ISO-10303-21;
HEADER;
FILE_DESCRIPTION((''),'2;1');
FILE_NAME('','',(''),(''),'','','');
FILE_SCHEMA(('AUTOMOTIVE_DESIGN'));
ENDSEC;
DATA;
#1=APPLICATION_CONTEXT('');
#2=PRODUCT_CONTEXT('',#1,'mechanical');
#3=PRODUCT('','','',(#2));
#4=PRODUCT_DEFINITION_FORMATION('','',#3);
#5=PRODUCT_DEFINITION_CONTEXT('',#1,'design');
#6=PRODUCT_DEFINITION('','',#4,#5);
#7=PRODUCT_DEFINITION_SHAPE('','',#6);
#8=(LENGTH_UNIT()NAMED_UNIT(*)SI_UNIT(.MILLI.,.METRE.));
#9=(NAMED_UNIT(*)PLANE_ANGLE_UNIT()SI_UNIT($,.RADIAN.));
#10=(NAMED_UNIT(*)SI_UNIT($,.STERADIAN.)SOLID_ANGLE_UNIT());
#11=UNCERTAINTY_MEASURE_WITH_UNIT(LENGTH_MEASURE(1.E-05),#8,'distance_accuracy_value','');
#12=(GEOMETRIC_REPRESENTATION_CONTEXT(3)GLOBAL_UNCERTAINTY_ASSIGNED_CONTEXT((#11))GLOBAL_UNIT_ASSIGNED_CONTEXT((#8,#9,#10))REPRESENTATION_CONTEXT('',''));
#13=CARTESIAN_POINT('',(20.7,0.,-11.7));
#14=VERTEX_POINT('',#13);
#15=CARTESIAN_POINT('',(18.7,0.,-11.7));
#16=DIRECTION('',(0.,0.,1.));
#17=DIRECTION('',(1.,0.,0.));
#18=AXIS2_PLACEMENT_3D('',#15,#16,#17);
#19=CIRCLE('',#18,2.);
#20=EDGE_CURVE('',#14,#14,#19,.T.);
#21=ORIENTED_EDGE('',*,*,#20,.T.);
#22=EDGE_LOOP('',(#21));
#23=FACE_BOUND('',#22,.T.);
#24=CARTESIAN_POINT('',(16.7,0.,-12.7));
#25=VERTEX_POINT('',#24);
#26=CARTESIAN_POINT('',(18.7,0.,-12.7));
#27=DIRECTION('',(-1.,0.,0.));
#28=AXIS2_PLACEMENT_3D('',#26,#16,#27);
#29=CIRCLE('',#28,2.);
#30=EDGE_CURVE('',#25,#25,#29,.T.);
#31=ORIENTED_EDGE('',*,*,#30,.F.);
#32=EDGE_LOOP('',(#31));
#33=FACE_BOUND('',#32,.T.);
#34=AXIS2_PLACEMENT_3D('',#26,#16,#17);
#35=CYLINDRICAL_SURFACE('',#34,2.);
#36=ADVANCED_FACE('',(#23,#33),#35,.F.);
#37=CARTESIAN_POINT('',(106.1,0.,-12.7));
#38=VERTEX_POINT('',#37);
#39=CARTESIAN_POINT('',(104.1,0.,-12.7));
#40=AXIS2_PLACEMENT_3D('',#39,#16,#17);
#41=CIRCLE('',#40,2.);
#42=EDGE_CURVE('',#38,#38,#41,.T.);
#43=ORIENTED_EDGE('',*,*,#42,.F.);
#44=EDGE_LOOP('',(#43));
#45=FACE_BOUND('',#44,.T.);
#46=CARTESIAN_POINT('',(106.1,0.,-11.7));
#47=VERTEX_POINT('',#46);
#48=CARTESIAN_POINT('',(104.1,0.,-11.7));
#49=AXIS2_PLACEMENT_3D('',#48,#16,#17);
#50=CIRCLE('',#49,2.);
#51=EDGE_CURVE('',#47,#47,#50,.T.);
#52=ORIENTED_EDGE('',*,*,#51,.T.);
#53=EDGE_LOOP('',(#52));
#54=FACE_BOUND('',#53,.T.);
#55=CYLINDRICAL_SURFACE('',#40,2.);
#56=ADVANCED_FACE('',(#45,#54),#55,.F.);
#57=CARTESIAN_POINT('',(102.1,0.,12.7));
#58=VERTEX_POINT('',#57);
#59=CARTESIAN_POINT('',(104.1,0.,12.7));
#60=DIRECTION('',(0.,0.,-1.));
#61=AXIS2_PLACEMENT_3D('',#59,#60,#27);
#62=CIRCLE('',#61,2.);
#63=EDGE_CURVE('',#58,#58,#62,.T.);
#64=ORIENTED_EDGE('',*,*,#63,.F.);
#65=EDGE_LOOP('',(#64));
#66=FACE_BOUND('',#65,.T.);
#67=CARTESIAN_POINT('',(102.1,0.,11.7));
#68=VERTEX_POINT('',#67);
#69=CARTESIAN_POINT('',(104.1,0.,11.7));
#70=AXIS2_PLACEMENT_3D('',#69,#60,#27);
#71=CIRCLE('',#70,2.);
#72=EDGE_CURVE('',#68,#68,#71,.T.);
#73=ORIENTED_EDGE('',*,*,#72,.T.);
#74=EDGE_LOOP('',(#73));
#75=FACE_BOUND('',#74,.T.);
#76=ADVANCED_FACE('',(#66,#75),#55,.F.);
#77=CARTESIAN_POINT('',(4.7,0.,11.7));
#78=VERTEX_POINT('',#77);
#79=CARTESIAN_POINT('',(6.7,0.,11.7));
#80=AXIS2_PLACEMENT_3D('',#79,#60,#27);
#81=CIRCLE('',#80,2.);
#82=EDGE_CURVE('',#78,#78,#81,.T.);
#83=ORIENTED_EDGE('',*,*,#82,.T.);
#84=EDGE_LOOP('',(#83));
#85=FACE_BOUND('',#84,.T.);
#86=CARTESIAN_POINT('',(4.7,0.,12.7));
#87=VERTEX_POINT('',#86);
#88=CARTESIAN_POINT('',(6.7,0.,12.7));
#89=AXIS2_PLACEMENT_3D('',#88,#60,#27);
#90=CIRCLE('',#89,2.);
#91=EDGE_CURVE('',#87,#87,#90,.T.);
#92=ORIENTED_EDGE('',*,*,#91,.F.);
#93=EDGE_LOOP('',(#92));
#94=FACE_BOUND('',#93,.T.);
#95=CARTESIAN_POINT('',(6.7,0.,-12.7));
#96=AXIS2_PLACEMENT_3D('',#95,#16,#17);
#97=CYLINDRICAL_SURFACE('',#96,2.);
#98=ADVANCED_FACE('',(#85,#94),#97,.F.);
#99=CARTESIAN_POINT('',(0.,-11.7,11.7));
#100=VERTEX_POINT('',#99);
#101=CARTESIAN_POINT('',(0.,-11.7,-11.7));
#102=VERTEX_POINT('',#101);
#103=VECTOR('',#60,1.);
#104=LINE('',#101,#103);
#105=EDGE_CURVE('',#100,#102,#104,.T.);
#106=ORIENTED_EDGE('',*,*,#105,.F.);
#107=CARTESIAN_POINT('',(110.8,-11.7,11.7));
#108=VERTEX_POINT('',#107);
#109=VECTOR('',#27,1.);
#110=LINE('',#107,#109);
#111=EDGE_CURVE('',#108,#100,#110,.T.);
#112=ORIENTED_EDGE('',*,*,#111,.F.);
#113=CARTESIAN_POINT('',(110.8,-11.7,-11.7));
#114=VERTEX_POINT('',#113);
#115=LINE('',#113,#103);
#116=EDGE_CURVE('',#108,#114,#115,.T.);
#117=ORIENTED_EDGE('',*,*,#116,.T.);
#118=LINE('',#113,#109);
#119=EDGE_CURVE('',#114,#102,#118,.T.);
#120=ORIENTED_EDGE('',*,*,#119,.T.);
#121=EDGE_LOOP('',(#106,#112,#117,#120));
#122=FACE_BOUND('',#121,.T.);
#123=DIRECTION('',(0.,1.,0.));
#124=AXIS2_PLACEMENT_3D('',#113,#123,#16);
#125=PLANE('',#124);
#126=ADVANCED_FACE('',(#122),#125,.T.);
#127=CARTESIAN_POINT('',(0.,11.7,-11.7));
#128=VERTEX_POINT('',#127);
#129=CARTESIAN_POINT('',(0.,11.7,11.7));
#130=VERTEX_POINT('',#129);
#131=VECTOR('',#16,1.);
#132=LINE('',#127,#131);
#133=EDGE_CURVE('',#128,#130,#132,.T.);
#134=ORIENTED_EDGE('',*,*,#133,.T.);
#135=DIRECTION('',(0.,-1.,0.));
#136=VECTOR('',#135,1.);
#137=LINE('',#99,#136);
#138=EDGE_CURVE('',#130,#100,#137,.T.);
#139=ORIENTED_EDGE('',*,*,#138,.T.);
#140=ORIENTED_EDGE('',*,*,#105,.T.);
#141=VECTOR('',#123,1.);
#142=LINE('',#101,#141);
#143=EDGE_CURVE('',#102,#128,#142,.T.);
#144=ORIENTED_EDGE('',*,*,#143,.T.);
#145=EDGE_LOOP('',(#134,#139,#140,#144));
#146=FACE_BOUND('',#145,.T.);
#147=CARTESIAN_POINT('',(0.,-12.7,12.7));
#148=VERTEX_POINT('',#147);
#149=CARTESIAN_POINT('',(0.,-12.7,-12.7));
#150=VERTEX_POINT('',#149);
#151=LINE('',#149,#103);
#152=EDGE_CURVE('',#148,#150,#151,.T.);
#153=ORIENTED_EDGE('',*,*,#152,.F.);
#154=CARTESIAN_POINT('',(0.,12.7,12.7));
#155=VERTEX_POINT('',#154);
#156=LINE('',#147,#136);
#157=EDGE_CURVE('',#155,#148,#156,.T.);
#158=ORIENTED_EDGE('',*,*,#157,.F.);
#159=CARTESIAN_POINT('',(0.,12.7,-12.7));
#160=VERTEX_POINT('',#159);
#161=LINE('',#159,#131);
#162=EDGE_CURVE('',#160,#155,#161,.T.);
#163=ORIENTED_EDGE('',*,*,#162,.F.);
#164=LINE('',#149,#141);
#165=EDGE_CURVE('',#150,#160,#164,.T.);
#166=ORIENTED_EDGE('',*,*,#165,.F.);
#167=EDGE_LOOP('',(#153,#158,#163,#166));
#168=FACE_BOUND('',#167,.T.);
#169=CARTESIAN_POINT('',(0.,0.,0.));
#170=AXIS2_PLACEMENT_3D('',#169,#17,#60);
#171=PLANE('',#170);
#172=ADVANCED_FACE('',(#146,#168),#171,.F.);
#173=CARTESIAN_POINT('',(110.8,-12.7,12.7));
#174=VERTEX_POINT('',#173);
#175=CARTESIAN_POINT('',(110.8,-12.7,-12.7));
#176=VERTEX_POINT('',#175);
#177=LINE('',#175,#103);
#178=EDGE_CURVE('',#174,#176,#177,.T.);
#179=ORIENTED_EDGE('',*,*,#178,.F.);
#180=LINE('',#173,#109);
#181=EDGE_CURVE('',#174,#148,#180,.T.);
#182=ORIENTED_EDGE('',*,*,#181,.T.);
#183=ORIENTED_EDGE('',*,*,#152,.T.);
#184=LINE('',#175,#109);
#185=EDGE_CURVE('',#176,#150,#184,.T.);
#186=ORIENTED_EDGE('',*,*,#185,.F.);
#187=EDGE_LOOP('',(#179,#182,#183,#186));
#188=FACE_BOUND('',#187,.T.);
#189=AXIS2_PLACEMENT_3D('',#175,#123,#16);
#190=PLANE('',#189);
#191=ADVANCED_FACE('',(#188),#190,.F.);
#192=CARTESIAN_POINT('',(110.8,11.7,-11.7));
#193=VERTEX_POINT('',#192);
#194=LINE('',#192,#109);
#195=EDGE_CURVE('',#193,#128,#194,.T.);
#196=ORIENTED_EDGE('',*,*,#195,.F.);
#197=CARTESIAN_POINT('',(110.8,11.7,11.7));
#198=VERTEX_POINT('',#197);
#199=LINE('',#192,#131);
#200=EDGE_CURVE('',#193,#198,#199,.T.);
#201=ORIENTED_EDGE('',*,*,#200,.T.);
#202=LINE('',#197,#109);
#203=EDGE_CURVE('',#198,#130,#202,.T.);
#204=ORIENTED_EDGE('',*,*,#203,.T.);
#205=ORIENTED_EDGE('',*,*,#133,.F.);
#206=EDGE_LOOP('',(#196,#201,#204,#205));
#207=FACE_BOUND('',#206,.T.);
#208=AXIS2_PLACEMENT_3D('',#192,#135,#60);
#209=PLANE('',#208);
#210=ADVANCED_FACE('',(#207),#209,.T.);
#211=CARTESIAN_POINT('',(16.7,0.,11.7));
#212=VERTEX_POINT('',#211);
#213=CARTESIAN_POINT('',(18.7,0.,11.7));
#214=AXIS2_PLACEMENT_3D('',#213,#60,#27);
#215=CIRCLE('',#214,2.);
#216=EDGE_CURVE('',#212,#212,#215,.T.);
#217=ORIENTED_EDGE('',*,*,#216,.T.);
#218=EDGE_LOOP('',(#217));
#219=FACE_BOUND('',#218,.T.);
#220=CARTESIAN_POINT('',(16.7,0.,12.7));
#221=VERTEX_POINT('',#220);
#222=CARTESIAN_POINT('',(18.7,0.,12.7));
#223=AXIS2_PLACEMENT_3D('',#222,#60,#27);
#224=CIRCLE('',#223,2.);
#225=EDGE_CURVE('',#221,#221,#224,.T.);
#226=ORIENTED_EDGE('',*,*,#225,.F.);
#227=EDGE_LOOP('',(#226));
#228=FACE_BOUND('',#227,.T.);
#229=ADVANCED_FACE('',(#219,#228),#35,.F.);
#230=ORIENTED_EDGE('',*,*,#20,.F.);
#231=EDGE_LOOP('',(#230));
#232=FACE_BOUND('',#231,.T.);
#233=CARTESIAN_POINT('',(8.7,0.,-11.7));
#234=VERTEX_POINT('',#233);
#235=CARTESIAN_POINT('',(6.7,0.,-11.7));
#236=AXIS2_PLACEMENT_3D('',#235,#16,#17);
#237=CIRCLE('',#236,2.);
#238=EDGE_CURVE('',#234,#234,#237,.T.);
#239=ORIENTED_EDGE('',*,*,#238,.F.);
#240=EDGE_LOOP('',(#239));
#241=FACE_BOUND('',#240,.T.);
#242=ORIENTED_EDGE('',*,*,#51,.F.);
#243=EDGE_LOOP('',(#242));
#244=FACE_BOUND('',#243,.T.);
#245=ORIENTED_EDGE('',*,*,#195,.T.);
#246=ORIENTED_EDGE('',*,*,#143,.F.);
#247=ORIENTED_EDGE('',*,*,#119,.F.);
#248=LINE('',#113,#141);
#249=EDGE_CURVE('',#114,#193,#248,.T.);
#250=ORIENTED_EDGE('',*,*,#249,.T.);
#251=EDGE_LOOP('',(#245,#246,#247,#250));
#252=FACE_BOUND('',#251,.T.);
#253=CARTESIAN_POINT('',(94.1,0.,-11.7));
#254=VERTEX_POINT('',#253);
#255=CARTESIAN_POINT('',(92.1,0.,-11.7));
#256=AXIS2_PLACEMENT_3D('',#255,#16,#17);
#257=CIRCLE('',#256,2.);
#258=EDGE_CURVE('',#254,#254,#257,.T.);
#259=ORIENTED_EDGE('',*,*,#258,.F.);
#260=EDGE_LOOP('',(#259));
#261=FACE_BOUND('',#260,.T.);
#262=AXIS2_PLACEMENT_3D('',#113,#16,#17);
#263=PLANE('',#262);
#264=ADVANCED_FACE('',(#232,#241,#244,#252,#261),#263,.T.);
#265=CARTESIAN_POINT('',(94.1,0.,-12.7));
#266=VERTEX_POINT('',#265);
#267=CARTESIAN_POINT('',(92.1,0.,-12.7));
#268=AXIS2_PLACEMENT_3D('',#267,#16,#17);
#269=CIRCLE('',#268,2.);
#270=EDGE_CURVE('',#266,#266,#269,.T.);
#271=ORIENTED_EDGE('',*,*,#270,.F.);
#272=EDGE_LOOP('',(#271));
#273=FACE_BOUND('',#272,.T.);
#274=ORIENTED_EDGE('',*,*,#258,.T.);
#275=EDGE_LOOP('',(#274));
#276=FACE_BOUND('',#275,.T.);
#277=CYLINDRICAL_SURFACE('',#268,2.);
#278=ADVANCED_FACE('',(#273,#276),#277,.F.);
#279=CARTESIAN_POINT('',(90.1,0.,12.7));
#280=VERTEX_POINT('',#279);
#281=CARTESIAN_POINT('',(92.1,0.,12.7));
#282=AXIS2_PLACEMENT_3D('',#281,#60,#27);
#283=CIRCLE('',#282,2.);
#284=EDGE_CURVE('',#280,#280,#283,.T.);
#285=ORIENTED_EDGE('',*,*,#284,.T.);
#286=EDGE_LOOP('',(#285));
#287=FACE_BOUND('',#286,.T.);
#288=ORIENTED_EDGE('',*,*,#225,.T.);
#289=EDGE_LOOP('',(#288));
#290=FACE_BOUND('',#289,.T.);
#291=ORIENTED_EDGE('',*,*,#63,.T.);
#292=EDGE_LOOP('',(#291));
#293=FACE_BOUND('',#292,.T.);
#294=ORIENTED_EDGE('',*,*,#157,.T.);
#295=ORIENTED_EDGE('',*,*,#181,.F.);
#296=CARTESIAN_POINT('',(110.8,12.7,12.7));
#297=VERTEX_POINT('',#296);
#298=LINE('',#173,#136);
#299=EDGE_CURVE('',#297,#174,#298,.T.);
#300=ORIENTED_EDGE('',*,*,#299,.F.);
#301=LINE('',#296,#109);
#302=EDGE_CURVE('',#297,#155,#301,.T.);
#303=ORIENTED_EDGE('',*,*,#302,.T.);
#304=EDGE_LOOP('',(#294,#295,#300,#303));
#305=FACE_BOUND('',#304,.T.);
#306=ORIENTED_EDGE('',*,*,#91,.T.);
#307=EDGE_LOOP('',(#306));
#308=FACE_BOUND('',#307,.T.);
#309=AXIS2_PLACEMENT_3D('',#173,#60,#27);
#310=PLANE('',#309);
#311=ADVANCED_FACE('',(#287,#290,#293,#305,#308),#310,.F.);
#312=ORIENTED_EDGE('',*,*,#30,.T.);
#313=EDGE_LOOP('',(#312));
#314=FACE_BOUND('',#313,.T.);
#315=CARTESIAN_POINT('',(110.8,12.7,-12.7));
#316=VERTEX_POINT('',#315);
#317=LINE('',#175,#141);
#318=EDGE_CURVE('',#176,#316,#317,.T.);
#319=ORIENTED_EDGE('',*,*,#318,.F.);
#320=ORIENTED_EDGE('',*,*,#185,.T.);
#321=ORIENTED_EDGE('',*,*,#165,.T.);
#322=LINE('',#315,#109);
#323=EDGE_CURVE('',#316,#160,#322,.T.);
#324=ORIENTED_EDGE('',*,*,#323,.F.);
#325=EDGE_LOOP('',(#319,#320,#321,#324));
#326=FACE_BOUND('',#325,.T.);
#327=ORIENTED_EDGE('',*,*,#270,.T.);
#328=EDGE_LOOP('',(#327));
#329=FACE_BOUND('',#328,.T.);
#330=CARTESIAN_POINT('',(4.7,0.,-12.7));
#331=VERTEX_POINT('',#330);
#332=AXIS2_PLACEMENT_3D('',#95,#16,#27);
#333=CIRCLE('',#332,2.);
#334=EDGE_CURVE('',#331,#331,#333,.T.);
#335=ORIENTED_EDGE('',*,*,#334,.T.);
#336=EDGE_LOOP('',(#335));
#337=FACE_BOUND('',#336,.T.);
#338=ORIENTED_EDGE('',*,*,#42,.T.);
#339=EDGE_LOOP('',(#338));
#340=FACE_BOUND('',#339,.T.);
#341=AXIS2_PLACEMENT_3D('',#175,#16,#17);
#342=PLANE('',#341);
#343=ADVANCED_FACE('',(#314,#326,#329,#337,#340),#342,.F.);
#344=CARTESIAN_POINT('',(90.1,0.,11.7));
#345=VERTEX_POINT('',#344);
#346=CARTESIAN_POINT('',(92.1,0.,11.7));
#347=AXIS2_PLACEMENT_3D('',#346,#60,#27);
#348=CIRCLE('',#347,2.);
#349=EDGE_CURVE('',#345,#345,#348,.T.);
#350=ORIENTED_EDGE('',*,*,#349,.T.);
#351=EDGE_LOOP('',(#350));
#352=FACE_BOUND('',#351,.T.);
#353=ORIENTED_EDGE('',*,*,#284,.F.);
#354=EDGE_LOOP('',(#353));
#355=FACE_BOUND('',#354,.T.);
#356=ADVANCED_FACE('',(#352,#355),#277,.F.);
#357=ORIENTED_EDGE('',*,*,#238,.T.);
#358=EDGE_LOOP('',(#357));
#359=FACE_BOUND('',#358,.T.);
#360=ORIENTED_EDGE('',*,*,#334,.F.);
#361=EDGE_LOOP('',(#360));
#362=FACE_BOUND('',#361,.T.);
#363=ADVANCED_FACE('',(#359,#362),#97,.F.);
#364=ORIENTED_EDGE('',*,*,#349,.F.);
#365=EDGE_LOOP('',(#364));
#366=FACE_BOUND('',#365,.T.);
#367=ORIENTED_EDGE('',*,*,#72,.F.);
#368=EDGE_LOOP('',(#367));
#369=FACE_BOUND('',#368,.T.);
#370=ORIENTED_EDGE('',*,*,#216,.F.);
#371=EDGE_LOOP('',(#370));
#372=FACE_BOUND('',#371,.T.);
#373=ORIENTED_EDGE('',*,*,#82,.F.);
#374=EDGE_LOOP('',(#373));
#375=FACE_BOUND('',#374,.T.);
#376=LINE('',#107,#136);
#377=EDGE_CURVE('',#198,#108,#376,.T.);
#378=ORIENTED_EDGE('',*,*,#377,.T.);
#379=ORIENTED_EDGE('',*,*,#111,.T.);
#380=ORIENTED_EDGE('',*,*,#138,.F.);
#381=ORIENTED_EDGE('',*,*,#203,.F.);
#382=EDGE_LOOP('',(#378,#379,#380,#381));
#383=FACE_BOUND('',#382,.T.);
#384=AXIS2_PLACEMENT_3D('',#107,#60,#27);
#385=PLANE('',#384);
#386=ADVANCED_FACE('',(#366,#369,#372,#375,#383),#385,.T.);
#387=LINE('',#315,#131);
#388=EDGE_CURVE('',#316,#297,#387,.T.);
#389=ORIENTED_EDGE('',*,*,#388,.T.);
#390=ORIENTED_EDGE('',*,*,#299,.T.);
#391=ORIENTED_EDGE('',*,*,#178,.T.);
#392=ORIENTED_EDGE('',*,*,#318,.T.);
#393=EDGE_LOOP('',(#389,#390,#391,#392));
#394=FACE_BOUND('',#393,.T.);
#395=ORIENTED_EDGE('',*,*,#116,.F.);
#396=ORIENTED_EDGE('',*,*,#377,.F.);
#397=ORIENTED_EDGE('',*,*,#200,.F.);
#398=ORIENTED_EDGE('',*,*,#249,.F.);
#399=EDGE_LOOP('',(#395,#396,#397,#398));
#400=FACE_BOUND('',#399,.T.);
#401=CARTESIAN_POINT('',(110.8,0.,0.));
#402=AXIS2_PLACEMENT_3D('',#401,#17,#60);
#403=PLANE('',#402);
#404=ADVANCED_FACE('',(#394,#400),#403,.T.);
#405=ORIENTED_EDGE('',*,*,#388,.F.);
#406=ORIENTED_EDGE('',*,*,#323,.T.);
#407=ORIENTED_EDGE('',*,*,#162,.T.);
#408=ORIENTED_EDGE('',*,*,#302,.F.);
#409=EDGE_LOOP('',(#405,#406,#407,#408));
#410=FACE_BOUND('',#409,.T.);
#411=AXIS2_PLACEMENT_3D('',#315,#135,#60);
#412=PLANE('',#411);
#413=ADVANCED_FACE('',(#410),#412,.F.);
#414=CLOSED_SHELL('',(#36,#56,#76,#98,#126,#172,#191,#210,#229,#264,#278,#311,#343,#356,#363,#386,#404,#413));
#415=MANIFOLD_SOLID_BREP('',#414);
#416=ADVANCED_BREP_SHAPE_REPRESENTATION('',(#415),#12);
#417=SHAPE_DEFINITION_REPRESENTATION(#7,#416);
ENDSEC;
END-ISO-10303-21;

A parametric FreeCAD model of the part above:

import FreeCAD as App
import Part
import Sketcher


def add_polygon(sketch, points):
    """Adds a closed chain of lines whose ends are joined by coincident constraints."""
    first, n = sketch.GeometryCount, len(points)
    for a, b in zip(points, points[1:] + points[:1]):
        sketch.addGeometry(Part.LineSegment(App.Vector(*a, 0), App.Vector(*b, 0)), False)
    for i in range(n):
        sketch.addConstraint(Sketcher.Constraint("Coincident", first + i, 2, first + (i + 1) % n, 1))

doc = App.newDocument("Part")
body = doc.addObject("PartDesign::Body", "Body")

# Sketch on YZ plane
sketch1 = body.newObject("Sketcher::SketchObject", "Sketch")
sketch1.AttachmentSupport = (doc.getObject("YZ_Plane"), [""])
sketch1.MapMode = "FlatFace"
add_polygon(sketch1, [(12.7, 12.7), (-12.7, 12.7), (-12.7, -12.7), (12.7, -12.7)])  # lines 0-3
add_polygon(sketch1, [(-11.7, -11.7), (-11.7, 11.7), (11.7, 11.7), (11.7, -11.7)])  # lines 4-7
sketch1.addConstraint(Sketcher.Constraint("Horizontal", 0))
sketch1.addConstraint(Sketcher.Constraint("Vertical", 1))
sketch1.addConstraint(Sketcher.Constraint("Horizontal", 2))
sketch1.addConstraint(Sketcher.Constraint("Vertical", 3))
sketch1.addConstraint(Sketcher.Constraint("Vertical", 4))
sketch1.addConstraint(Sketcher.Constraint("Horizontal", 5))
sketch1.addConstraint(Sketcher.Constraint("Vertical", 6))
sketch1.addConstraint(Sketcher.Constraint("Horizontal", 7))
sketch1.addConstraint(Sketcher.Constraint("Symmetric", 0, 2, 2, 2, -1, 1))
sketch1.addConstraint(Sketcher.Constraint("Symmetric", 4, 2, 6, 2, -1, 1))
sketch1.addConstraint(Sketcher.Constraint("Equal", 2, 1))
sketch1.addConstraint(Sketcher.Constraint("Equal", 7, 4))
sketch1.addConstraint(Sketcher.Constraint("DistanceX", 0, 2, 0, 1, 25.4))
sketch1.addConstraint(Sketcher.Constraint("DistanceX", 5, 1, 5, 2, 23.4))
pad1 = body.newObject("PartDesign::Pad", "Pad")
pad1.Profile = sketch1
pad1.Length = 110.8

# Sketch on XY plane
sketch2 = body.newObject("Sketcher::SketchObject", "Sketch001")
sketch2.AttachmentSupport = (doc.getObject("XY_Plane"), [""])
sketch2.MapMode = "FlatFace"
sketch2.AttachmentOffset = App.Placement(App.Vector(0, 0, 12.7), App.Rotation())
sketch2.addGeometry(Part.Circle(App.Vector(92.1, 0, 0), App.Vector(0, 0, 1), 2), False)
sketch2.addGeometry(Part.Circle(App.Vector(104.1, 0, 0), App.Vector(0, 0, 1), 2), False)
sketch2.addGeometry(Part.Circle(App.Vector(6.7, 0, 0), App.Vector(0, 0, 1), 2), False)
sketch2.addGeometry(Part.Circle(App.Vector(18.7, 0, 0), App.Vector(0, 0, 1), 2), False)
sketch2.addConstraint(Sketcher.Constraint("Equal", 0, 1))
sketch2.addConstraint(Sketcher.Constraint("Equal", 1, 2))
sketch2.addConstraint(Sketcher.Constraint("Equal", 2, 3))
sketch2.addConstraint(Sketcher.Constraint("PointOnObject", 0, 3, -1))
sketch2.addConstraint(Sketcher.Constraint("PointOnObject", 1, 3, -1))
sketch2.addConstraint(Sketcher.Constraint("PointOnObject", 2, 3, -1))
sketch2.addConstraint(Sketcher.Constraint("PointOnObject", 3, 3, -1))
sketch2.addConstraint(Sketcher.Constraint("Diameter", 0, 4.0))
sketch2.addConstraint(Sketcher.Constraint("DistanceX", 0, 3, 1, 3, 12.0))
sketch2.addConstraint(Sketcher.Constraint("DistanceX", 2, 3, 3, 3, 12.0))
sketch2.addConstraint(Sketcher.Constraint("DistanceX", -1, 1, 0, 3, 92.1))
sketch2.addConstraint(Sketcher.Constraint("DistanceX", -1, 1, 2, 3, 6.7))
pocket1 = body.newObject("PartDesign::Pocket", "Pocket")
pocket1.Profile = sketch2
pocket1.Type = "ThroughAll"
pocket1.Midplane = True

doc.recompute()
